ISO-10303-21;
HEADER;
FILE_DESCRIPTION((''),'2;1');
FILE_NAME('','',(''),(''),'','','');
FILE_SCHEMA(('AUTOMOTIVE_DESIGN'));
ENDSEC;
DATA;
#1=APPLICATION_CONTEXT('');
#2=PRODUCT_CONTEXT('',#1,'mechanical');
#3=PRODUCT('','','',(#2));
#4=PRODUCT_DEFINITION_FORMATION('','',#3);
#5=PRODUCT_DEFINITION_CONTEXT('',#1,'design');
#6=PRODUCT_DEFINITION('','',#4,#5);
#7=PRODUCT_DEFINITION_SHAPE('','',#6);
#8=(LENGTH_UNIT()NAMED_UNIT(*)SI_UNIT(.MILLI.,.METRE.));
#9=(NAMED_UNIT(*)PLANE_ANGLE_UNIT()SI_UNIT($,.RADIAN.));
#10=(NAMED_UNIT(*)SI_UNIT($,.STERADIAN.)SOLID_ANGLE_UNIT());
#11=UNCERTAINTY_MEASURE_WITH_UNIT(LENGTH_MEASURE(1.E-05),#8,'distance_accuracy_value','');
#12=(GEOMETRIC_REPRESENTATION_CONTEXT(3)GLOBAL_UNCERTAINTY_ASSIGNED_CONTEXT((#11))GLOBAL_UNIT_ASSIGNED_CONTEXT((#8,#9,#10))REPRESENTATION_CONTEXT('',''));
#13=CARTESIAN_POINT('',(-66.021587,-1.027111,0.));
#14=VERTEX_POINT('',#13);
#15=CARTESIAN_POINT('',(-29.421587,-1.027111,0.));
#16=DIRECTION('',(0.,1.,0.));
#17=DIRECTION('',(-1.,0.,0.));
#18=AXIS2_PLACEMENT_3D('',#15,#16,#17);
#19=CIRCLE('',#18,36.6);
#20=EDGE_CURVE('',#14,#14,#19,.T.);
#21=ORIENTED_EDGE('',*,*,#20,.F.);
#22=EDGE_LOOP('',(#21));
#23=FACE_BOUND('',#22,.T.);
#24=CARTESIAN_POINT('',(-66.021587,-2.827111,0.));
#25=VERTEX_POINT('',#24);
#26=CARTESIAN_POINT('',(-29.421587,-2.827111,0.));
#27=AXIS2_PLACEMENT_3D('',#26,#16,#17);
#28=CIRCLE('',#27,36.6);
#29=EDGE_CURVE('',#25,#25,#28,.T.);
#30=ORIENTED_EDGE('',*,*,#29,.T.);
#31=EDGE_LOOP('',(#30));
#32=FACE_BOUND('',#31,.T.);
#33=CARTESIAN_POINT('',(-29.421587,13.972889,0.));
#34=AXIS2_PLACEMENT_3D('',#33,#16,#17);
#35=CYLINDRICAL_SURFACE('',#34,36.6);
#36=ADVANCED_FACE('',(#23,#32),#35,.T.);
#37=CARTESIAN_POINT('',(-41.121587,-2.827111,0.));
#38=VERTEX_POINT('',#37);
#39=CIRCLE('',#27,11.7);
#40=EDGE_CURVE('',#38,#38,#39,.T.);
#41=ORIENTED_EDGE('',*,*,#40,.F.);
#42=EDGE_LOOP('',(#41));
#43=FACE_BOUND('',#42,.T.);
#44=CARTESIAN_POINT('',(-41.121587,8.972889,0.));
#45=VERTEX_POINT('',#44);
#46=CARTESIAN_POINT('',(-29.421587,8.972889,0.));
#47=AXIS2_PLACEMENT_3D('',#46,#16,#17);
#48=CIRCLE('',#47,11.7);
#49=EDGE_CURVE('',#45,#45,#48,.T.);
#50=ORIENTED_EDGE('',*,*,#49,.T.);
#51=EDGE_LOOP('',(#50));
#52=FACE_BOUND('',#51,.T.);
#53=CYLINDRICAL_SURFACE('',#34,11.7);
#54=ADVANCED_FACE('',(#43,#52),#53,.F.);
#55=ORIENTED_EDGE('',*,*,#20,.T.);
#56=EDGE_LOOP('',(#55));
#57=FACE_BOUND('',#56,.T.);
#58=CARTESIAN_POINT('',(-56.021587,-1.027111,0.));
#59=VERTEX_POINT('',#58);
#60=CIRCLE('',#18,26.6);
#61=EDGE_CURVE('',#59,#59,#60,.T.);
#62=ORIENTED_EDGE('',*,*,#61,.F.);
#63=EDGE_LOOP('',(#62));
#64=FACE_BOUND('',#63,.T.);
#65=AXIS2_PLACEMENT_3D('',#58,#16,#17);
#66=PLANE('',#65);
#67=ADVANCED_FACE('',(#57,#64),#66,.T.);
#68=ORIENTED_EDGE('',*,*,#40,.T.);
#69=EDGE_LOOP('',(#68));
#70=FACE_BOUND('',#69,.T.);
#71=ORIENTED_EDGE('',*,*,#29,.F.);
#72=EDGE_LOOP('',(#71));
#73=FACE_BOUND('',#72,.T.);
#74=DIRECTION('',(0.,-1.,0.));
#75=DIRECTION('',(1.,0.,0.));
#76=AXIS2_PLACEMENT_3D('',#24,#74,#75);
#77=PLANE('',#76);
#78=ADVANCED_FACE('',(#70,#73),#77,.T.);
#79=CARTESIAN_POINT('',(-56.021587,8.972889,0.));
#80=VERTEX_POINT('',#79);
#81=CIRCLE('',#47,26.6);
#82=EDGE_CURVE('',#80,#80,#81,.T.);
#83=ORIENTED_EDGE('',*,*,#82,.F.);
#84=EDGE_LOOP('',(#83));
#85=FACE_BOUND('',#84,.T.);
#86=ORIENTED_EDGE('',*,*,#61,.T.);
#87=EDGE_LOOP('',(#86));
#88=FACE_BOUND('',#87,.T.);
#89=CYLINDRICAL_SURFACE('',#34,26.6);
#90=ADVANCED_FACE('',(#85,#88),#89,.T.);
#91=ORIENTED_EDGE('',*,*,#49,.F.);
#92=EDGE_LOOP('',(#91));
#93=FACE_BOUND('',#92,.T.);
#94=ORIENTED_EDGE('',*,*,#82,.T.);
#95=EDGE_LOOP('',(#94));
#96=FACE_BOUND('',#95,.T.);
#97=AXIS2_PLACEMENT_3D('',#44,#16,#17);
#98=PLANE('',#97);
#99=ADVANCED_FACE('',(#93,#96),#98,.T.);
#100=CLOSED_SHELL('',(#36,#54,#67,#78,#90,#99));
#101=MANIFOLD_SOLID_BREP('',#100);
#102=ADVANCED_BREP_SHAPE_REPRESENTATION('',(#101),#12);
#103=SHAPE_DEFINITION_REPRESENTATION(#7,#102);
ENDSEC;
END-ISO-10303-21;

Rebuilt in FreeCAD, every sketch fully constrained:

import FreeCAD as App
import Part
import Sketcher

V = App.Vector
Q = App.Units.Quantity

doc = App.newDocument("Part")
body = doc.addObject("PartDesign::Body", "Body")

sketch1 = body.newObject("Sketcher::SketchObject", "Sketch")
sketch1.AttachmentSupport = (doc.getObject("XY_Plane"), [""])
sketch1.MapMode = "FlatFace"
sketch1.addGeometry([
    Part.LineSegment(V(-41.1, -2.8, 0), V(-41.1, 9, 0)),
    Part.LineSegment(V(-41.1, 9, 0), V(-56, 9, 0)),
    Part.LineSegment(V(-56, 9, 0), V(-56, -1, 0)),
    Part.LineSegment(V(-56, -1, 0), V(-66, -1, 0)),
    Part.LineSegment(V(-66, -1, 0), V(-66, -2.8, 0)),
    Part.LineSegment(V(-66, -2.8, 0), V(-41.1, -2.8, 0)),
], False)
sketch1.addGeometry(Part.LineSegment(V(-29.4, 9, 0), V(-29.4, -2.8, 0)), True)
sketch1.addConstraint([
    Sketcher.Constraint("Coincident", 0, 2, 1, 1),
    Sketcher.Constraint("Coincident", 1, 2, 2, 1),
    Sketcher.Constraint("Coincident", 2, 2, 3, 1),
    Sketcher.Constraint("Coincident", 3, 2, 4, 1),
    Sketcher.Constraint("Coincident", 4, 2, 5, 1),
    Sketcher.Constraint("Coincident", 5, 2, 0, 1),
    Sketcher.Constraint("Vertical", 0),
    Sketcher.Constraint("Horizontal", 1),
    Sketcher.Constraint("Vertical", 2),
    Sketcher.Constraint("Horizontal", 3),
    Sketcher.Constraint("Vertical", 4),
    Sketcher.Constraint("Horizontal", 5),
    Sketcher.Constraint("Vertical", 6),
    Sketcher.Constraint("Horizontal", 1, 2, 6, 1),
    Sketcher.Constraint("Horizontal", 5, 2, 6, 2),
    Sketcher.Constraint("Equal", 3, 2),
    Sketcher.Constraint("DistanceX", 3, 2, 3, 1, Q("10 mm")),
    Sketcher.Constraint("DistanceX", 1, 2, 1, 1, Q("14.9 mm")),
    Sketcher.Constraint("DistanceY", 0, 1, 0, 2, Q("11.8 mm")),
    Sketcher.Constraint("DistanceX", 0, 2, 6, 1, Q("11.7 mm")),
    Sketcher.Constraint("DistanceY", -1, 1, 0, 2, Q("8.972889 mm")),
    Sketcher.Constraint("DistanceX", 0, 2, -1, 1, Q("41.121587 mm")),
])
revolution = body.newObject("PartDesign::Revolution", "Revolution")
revolution.Profile = sketch1
revolution.ReferenceAxis = (sketch1, ["Axis0"])
revolution.Angle = 360

doc.recompute()
